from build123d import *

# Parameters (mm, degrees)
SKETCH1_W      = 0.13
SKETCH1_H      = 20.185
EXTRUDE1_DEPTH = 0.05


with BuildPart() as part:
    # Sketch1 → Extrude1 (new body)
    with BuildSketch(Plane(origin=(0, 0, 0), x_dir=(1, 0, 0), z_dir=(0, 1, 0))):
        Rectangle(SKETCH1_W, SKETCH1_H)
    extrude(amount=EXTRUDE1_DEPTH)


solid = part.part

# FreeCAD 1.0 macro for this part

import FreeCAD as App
import Part
import Sketcher
Q = App.Units.Quantity

doc = App.newDocument("Part")
body = doc.addObject("PartDesign::Body", "Body")

sketch1 = doc.addObject("Sketcher::SketchObject", "Sketch")
body.addObject(sketch1)
sketch1.AttachmentSupport = (doc.XZ_Plane, [""])
sketch1.MapMode = "FlatFace"
sketch1.addGeometry(Part.LineSegment(App.Vector(-0.07, -10.09, 0), App.Vector(-0.07, 10.09, 0)), False)
sketch1.addGeometry(Part.LineSegment(App.Vector(-0.07, 10.09, 0), App.Vector(0.07, 10.09, 0)), False)
sketch1.addGeometry(Part.LineSegment(App.Vector(0.07, 10.09, 0), App.Vector(0.07, -10.09, 0)), False)
sketch1.addGeometry(Part.LineSegment(App.Vector(0.07, -10.09, 0), App.Vector(-0.07, -10.09, 0)), False)
sketch1.addConstraint(Sketcher.Constraint("Coincident", 0, 2, 1, 1))
sketch1.addConstraint(Sketcher.Constraint("Coincident", 1, 2, 2, 1))
sketch1.addConstraint(Sketcher.Constraint("Coincident", 2, 2, 3, 1))
sketch1.addConstraint(Sketcher.Constraint("Coincident", 3, 2, 0, 1))
sketch1.addConstraint(Sketcher.Constraint("Vertical", 0))
sketch1.addConstraint(Sketcher.Constraint("Horizontal", 1))
sketch1.addConstraint(Sketcher.Constraint("Vertical", 2))
sketch1.addConstraint(Sketcher.Constraint("Horizontal", 3))
sketch1.addConstraint(Sketcher.Constraint("Symmetric", 0, 2, 2, 2, -1, 1))
sketch1.addConstraint(Sketcher.Constraint("DistanceX", 1, 1, 1, 2, Q("0.13 mm")))
sketch1.addConstraint(Sketcher.Constraint("DistanceY", 0, 1, 0, 2, Q("20.185 mm")))
pad1 = doc.addObject("PartDesign::Pad", "Pad")
body.addObject(pad1)
pad1.Profile = sketch1
pad1.Length = 0.05
pad1.Reversed = True

doc.recompute()
